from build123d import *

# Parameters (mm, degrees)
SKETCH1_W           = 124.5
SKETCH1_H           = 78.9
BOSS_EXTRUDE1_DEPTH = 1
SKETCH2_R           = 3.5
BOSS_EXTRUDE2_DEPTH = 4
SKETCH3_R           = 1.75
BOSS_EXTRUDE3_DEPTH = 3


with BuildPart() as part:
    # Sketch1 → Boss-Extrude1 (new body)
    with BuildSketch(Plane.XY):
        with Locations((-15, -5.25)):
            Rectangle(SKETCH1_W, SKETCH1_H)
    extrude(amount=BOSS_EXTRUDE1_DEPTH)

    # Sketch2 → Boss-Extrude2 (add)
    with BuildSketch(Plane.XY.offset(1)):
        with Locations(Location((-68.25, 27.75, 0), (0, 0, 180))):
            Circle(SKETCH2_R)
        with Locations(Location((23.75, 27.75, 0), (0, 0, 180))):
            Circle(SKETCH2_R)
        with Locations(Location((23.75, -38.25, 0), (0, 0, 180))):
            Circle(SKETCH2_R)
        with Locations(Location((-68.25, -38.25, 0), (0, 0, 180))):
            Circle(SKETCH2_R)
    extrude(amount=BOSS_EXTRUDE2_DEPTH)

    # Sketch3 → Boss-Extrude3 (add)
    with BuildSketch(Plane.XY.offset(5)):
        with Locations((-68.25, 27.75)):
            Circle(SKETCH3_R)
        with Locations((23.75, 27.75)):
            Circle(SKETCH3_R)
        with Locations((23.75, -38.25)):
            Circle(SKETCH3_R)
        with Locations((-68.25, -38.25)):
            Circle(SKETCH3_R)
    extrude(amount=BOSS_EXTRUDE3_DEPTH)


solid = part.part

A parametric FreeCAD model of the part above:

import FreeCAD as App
import Part
import Sketcher
from FreeCAD import Vector

doc = App.newDocument("Part")
body = doc.addObject("PartDesign::Body", "Body")

# Sketch on XY plane
sketch1 = body.newObject("Sketcher::SketchObject", "Sketch")
sketch1.AttachmentSupport = (doc.getObject("XY_Plane"), [""])
sketch1.MapMode = "FlatFace"
sketch1.addGeometry([
    Part.LineSegment(Vector(-77.25, 34.2, 0), Vector(-77.25, -44.7, 0)),
    Part.LineSegment(Vector(-77.25, -44.7, 0), Vector(47.25, -44.7, 0)),
    Part.LineSegment(Vector(47.25, -44.7, 0), Vector(47.25, 34.2, 0)),
    Part.LineSegment(Vector(47.25, 34.2, 0), Vector(-77.25, 34.2, 0)),
], False)
sketch1.addConstraint([
    Sketcher.Constraint("Coincident", 0, 2, 1, 1),
    Sketcher.Constraint("Coincident", 1, 2, 2, 1),
    Sketcher.Constraint("Coincident", 2, 2, 3, 1),
    Sketcher.Constraint("Coincident", 3, 2, 0, 1),
    Sketcher.Constraint("Vertical", 0),
    Sketcher.Constraint("Horizontal", 1),
    Sketcher.Constraint("Vertical", 2),
    Sketcher.Constraint("Horizontal", 3),
    Sketcher.Constraint("DistanceX", 1, 1, 1, 2, 124.5),
    Sketcher.Constraint("DistanceY", 0, 2, 0, 1, 78.9),
    Sketcher.Constraint("DistanceY", 0, 2, -1, 1, 44.7),
    Sketcher.Constraint("DistanceX", 0, 2, -1, 1, 77.25),
])
pad1 = body.newObject("PartDesign::Pad", "Pad")
pad1.Profile = sketch1
pad1.Length = 1

# Sketch on XY plane
sketch2 = body.newObject("Sketcher::SketchObject", "Sketch001")
sketch2.AttachmentSupport = (doc.getObject("XY_Plane"), [""])
sketch2.MapMode = "FlatFace"
sketch2.AttachmentOffset = App.Placement(Vector(0, 0, 1), App.Rotation())
sketch2.addGeometry([
    Part.Circle(Vector(-68.25, 27.75, 0), Vector(0, 0, 1), 3.5),
    Part.Circle(Vector(23.75, 27.75, 0), Vector(0, 0, 1), 3.5),
    Part.Circle(Vector(23.75, -38.25, 0), Vector(0, 0, 1), 3.5),
    Part.Circle(Vector(-68.25, -38.25, 0), Vector(0, 0, 1), 3.5),
], False)
sketch2.addConstraint([
    Sketcher.Constraint("Equal", 0, 1),
    Sketcher.Constraint("Equal", 1, 2),
    Sketcher.Constraint("Equal", 2, 3),
    Sketcher.Constraint("Horizontal", 0, 3, 1, 3),
    Sketcher.Constraint("Horizontal", 2, 3, 3, 3),
    Sketcher.Constraint("Vertical", 1, 3, 2, 3),
    Sketcher.Constraint("Vertical", 0, 3, 3, 3),
    Sketcher.Constraint("Diameter", 0, 7.0),
    Sketcher.Constraint("DistanceX", 0, 3, 1, 3, 92.0),
    Sketcher.Constraint("DistanceY", 2, 3, 1, 3, 66.0),
    Sketcher.Constraint("DistanceX", 0, 3, -1, 1, 68.25),
    Sketcher.Constraint("DistanceY", -1, 1, 0, 3, 27.75),
])
pad2 = body.newObject("PartDesign::Pad", "Pad001")
pad2.Profile = sketch2
pad2.Length = 4

# Sketch on XY plane
sketch3 = body.newObject("Sketcher::SketchObject", "Sketch002")
sketch3.AttachmentSupport = (doc.getObject("XY_Plane"), [""])
sketch3.MapMode = "FlatFace"
sketch3.AttachmentOffset = App.Placement(Vector(0, 0, 5), App.Rotation())
sketch3.addGeometry([
    Part.Circle(Vector(-68.25, 27.75, 0), Vector(0, 0, 1), 1.75),
    Part.Circle(Vector(23.75, 27.75, 0), Vector(0, 0, 1), 1.75),
    Part.Circle(Vector(23.75, -38.25, 0), Vector(0, 0, 1), 1.75),
    Part.Circle(Vector(-68.25, -38.25, 0), Vector(0, 0, 1), 1.75),
], False)
sketch3.addConstraint([
    Sketcher.Constraint("Equal", 0, 1),
    Sketcher.Constraint("Equal", 1, 2),
    Sketcher.Constraint("Equal", 2, 3),
    Sketcher.Constraint("Horizontal", 0, 3, 1, 3),
    Sketcher.Constraint("Horizontal", 2, 3, 3, 3),
    Sketcher.Constraint("Vertical", 1, 3, 2, 3),
    Sketcher.Constraint("Vertical", 0, 3, 3, 3),
    Sketcher.Constraint("Diameter", 0, 3.5),
    Sketcher.Constraint("DistanceX", 0, 3, 1, 3, 92.0),
    Sketcher.Constraint("DistanceY", 2, 3, 1, 3, 66.0),
    Sketcher.Constraint("DistanceX", 0, 3, -1, 1, 68.25),
    Sketcher.Constraint("DistanceY", -1, 1, 0, 3, 27.75),
])
pad3 = body.newObject("PartDesign::Pad", "Pad002")
pad3.Profile = sketch3
pad3.Length = 3

doc.recompute()
